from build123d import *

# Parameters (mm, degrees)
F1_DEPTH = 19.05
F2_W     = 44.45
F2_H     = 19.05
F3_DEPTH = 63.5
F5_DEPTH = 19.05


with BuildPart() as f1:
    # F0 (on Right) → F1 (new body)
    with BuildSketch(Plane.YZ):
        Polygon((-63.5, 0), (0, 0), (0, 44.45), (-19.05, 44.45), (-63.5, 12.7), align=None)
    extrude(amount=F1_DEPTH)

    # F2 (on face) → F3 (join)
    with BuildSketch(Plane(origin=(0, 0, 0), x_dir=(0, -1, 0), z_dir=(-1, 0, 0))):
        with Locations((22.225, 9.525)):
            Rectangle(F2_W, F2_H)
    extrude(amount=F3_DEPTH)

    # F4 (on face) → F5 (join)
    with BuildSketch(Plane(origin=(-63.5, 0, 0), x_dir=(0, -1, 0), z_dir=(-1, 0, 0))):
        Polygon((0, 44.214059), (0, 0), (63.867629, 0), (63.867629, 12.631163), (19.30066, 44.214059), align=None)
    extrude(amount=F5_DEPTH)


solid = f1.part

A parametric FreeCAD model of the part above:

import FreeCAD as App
import Part
import Sketcher
Q = App.Units.Quantity


def add_polygon(sketch, points):
    """Adds a closed chain of lines whose ends are joined by coincident constraints."""
    first, n = sketch.GeometryCount, len(points)
    for a, b in zip(points, points[1:] + points[:1]):
        sketch.addGeometry(Part.LineSegment(App.Vector(*a, 0), App.Vector(*b, 0)), False)
    for i in range(n):
        sketch.addConstraint(Sketcher.Constraint("Coincident", first + i, 2, first + (i + 1) % n, 1))

doc = App.newDocument("Part")
body = doc.addObject("PartDesign::Body", "Body")

# Sketch on YZ plane
sketch1 = body.newObject("Sketcher::SketchObject", "Sketch")
sketch1.AttachmentSupport = (doc.getObject("YZ_Plane"), [""])
sketch1.MapMode = "FlatFace"
add_polygon(sketch1, [(-64, 0), (0, 0), (0, 44), (-19, 44), (-64, 13)])  # lines 0-4
sketch1.addConstraint([
    Sketcher.Constraint("Horizontal", 0),
    Sketcher.Constraint("Vertical", 1),
    Sketcher.Constraint("Horizontal", 2),
    Sketcher.Constraint("Vertical", 4),
    Sketcher.Constraint("Coincident", 0, 2, -1, 1),
    Sketcher.Constraint("DistanceX", 0, 1, 0, 2, Q("2.5 in")),
    Sketcher.Constraint("DistanceY", 4, 2, 4, 1, Q("0.5 in")),
    Sketcher.Constraint("DistanceX", 2, 2, 2, 1, Q("0.75 in")),
    Sketcher.Constraint("DistanceY", 1, 1, 1, 2, Q("1.75 in")),
])
pad1 = body.newObject("PartDesign::Pad", "Pad")
pad1.Profile = sketch1
pad1.Length = Q("0.75 in")

# Sketch on YZ plane
sketch2 = body.newObject("Sketcher::SketchObject", "Sketch001")
sketch2.AttachmentSupport = (doc.getObject("YZ_Plane"), [""])
sketch2.MapMode = "FlatFace"
add_polygon(sketch2, [(0, 19), (0, 0), (-44, 0), (-44, 19)])  # lines 0-3
sketch2.addConstraint([
    Sketcher.Constraint("Vertical", 0),
    Sketcher.Constraint("Horizontal", 1),
    Sketcher.Constraint("Vertical", 2),
    Sketcher.Constraint("Horizontal", 3),
    Sketcher.Constraint("Coincident", 0, 2, -1, 1),
    Sketcher.Constraint("DistanceX", 1, 2, 1, 1, Q("1.75 in")),
    Sketcher.Constraint("DistanceY", 0, 2, 0, 1, Q("0.75 in")),
])
pad2 = body.newObject("PartDesign::Pad", "Pad001")
pad2.Profile = sketch2
pad2.Length = Q("2.5 in")
pad2.Reversed = True

# Sketch on YZ plane
sketch3 = body.newObject("Sketcher::SketchObject", "Sketch002")
sketch3.AttachmentSupport = (doc.getObject("YZ_Plane"), [""])
sketch3.MapMode = "FlatFace"
sketch3.AttachmentOffset = App.Placement(App.Vector(0, 0, -2.5 * 25.4), App.Rotation())
add_polygon(sketch3, [(0, 44), (0, 0), (-64, 0), (-64, 13), (-19, 44)])  # lines 0-4
sketch3.addConstraint([
    Sketcher.Constraint("Vertical", 0),
    Sketcher.Constraint("Horizontal", 1),
    Sketcher.Constraint("Vertical", 2),
    Sketcher.Constraint("Horizontal", 4),
    Sketcher.Constraint("Coincident", 0, 2, -1, 1),
    Sketcher.Constraint("Distance", 3, 54.623201),
    Sketcher.Constraint("DistanceX", 1, 2, 1, 1, 63.867629),
    Sketcher.Constraint("DistanceX", 4, 1, 4, 2, 19.30066),
    Sketcher.Constraint("DistanceY", 0, 2, 0, 1, 44.214059),
])
pad3 = body.newObject("PartDesign::Pad", "Pad002")
pad3.Profile = sketch3
pad3.Length = Q("0.75 in")
pad3.Reversed = True

doc.recompute()
